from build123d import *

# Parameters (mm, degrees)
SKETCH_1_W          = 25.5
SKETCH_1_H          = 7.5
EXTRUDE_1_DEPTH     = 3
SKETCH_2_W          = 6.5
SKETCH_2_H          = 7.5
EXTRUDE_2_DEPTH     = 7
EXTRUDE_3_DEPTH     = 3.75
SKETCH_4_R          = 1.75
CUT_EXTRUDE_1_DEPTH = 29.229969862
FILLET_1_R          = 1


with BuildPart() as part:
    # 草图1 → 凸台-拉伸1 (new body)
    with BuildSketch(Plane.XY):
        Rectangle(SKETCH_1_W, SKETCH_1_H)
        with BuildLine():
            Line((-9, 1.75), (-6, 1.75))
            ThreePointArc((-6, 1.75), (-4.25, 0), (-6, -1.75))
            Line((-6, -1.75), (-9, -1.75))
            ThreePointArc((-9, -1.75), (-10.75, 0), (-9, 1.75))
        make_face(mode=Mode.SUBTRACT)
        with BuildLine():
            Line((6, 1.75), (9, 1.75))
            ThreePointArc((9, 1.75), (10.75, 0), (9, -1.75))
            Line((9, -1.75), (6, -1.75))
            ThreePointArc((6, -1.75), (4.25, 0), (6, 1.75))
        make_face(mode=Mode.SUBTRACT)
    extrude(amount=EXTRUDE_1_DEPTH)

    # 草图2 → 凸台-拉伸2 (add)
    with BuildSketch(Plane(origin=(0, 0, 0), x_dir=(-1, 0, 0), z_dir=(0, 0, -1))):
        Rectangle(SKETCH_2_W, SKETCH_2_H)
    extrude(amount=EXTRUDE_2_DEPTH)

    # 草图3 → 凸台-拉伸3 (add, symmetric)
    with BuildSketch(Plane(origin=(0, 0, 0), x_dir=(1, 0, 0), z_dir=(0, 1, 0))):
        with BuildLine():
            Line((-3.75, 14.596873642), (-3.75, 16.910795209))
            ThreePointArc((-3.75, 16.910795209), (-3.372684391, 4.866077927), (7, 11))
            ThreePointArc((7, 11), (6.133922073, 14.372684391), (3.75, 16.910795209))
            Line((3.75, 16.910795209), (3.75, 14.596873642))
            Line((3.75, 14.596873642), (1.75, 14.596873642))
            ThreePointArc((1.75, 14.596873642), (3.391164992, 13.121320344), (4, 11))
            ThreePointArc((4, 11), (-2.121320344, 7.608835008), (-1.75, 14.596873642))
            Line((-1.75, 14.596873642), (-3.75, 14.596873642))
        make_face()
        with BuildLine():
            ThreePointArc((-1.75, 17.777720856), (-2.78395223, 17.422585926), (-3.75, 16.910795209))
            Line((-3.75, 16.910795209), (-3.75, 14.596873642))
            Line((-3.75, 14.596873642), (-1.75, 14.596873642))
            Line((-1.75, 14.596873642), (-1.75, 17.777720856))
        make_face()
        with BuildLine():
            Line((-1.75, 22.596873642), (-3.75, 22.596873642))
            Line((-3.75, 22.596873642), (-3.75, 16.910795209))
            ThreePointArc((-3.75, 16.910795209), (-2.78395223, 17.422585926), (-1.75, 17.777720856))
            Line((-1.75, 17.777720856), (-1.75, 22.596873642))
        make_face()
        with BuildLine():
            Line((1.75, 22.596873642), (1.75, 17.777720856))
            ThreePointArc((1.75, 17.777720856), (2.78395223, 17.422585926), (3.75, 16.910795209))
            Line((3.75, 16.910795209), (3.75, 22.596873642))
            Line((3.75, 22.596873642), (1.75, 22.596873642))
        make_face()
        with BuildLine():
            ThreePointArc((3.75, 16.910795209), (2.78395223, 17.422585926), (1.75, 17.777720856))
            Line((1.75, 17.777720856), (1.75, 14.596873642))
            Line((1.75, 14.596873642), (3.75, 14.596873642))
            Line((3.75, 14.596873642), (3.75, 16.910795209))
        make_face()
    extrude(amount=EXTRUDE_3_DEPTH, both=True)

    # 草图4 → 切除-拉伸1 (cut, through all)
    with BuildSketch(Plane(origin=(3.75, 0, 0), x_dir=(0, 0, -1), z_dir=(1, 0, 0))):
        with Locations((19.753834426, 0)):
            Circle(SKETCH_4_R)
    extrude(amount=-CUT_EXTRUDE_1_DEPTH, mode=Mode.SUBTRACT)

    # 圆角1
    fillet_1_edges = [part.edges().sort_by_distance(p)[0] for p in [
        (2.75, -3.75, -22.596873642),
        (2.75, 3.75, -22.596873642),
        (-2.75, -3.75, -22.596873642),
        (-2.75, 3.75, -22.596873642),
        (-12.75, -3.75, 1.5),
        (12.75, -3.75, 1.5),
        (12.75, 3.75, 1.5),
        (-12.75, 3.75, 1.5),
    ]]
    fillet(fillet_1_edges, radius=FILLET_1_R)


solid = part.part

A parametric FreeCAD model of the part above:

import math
import FreeCAD as App
import Part
import Sketcher
from FreeCAD import Vector


def edges_at(feature, points):
    """Names of the edges that pass closest to the given points."""
    edges = feature.Shape.Edges
    near = lambda p: min(range(len(edges)), key=lambda i: edges[i].distToShape(Part.Vertex(*p))[0])
    return sorted({f"Edge{near(p) + 1}" for p in points})


def add_polygon(sketch, points):
    """Adds a closed chain of lines whose ends are joined by coincident constraints."""
    first, n = sketch.GeometryCount, len(points)
    for a, b in zip(points, points[1:] + points[:1]):
        sketch.addGeometry(Part.LineSegment(App.Vector(*a, 0), App.Vector(*b, 0)), False)
    for i in range(n):
        sketch.addConstraint(Sketcher.Constraint("Coincident", first + i, 2, first + (i + 1) % n, 1))

doc = App.newDocument("Part")
params = doc.addObject("Spreadsheet::Sheet", "Params")
for row, (alias, value) in enumerate([
    ("sketch1_width", "3 mm"),
    ("sketch1_radius", "1.75 mm"),
    ("sketch1_width2", "25.5 mm"),
    ("sketch1_height", "7.5 mm"),
    ("pad1_length", "3 mm"),
    ("sketch2_width", "6.5 mm"),
    ("sketch2_height", "7.5 mm"),
    ("pad2_length", "7 mm"),
    ("sketch3_radius", "7 mm"),
    ("sketch3_radius2", "4 mm"),
    ("sketch3_width", "2 mm"),
    ("sketch3_height", "8 mm"),
    ("pad3_length", "7.5 mm"),
    ("sketch4_diameter", "3.5 mm"),
    ("fillet_radius", "1 mm"),
], start=1):
    params.set(f"A{row}", alias)
    params.set(f"B{row}", "=" + value)
    params.setAlias(f"B{row}", alias)

body = doc.addObject("PartDesign::Body", "Body")

# Sketch on XY plane
sketch1 = body.newObject("Sketcher::SketchObject", "Sketch")
sketch1.AttachmentSupport = (doc.getObject("XY_Plane"), [""])
sketch1.MapMode = "FlatFace"
add_polygon(sketch1, [(-12.8, 3.8), (-12.8, -3.8), (12.8, -3.8), (12.8, 3.8)])  # lines 0-3
sketch1.addGeometry(Part.ArcOfCircle(Part.Circle(Vector(-9, 0, 0), Vector(0, 0, 1), 1.8), math.radians(90), math.radians(270)), False)  # 4
sketch1.addGeometry(Part.LineSegment(Vector(-9, 1.8, 0), Vector(-6, 1.8, 0)), False)  # 5
sketch1.addGeometry(Part.ArcOfCircle(Part.Circle(Vector(-6, 0, 0), Vector(0, 0, 1), 1.8), math.radians(-90), math.radians(90)), False)  # 6
sketch1.addGeometry(Part.LineSegment(Vector(-6, -1.8, 0), Vector(-9, -1.8, 0)), False)  # 7
sketch1.addGeometry(Part.ArcOfCircle(Part.Circle(Vector(6, 0, 0), Vector(0, 0, 1), 1.8), math.radians(90), math.radians(270)), False)  # 8
sketch1.addGeometry(Part.LineSegment(Vector(6, 1.8, 0), Vector(9, 1.8, 0)), False)  # 9
sketch1.addGeometry(Part.ArcOfCircle(Part.Circle(Vector(9, 0, 0), Vector(0, 0, 1), 1.8), math.radians(-90), math.radians(90)), False)  # 10
sketch1.addGeometry(Part.LineSegment(Vector(9, -1.8, 0), Vector(6, -1.8, 0)), False)  # 11
sketch1.addConstraint([
    Sketcher.Constraint("Tangent", 4, 1, 5, 1),
    Sketcher.Constraint("Tangent", 5, 2, 6, 2),
    Sketcher.Constraint("Tangent", 6, 1, 7, 1),
    Sketcher.Constraint("Tangent", 7, 2, 4, 2),
    Sketcher.Constraint("Tangent", 8, 1, 9, 1),
    Sketcher.Constraint("Tangent", 9, 2, 10, 2),
    Sketcher.Constraint("Tangent", 10, 1, 11, 1),
    Sketcher.Constraint("Tangent", 11, 2, 8, 2),
    Sketcher.Constraint("Vertical", 0),
    Sketcher.Constraint("Horizontal", 1),
    Sketcher.Constraint("Vertical", 2),
    Sketcher.Constraint("Horizontal", 3),
    Sketcher.Constraint("Horizontal", 5),
    Sketcher.Constraint("Horizontal", 7),
    Sketcher.Constraint("Horizontal", 9),
    Sketcher.Constraint("Horizontal", 11),
    Sketcher.Constraint("Equal", 6, 8),
    Sketcher.Constraint("Symmetric", 6, 3, 8, 3, -1, 1),
    Sketcher.Constraint("Symmetric", 0, 2, 2, 2, -1, 1),
    Sketcher.Constraint("Symmetric", 4, 3, 10, 3, -2),
    Sketcher.Constraint("DistanceX", 5, 1, 5, 2, 3.0),
    Sketcher.Constraint("Radius", 4, 1.75),
    Sketcher.Constraint("DistanceX", 1, 1, 1, 2, 25.5),
    Sketcher.Constraint("DistanceY", 0, 2, 0, 1, 7.5),
    Sketcher.Constraint("DistanceX", 4, 3, -1, 1, 9.0),
])
sketch1.setExpression("Constraints[24]", "Params.sketch1_width")
sketch1.setExpression("Constraints[25]", "Params.sketch1_radius")
sketch1.setExpression("Constraints[26]", "Params.sketch1_width2")
sketch1.setExpression("Constraints[27]", "Params.sketch1_height")
pad1 = body.newObject("PartDesign::Pad", "Pad")
pad1.Profile = sketch1
pad1.setExpression("Length", "Params.pad1_length")

# Sketch on XY plane
sketch2 = body.newObject("Sketcher::SketchObject", "Sketch001")
sketch2.AttachmentSupport = (doc.getObject("XY_Plane"), [""])
sketch2.MapMode = "FlatFace"
add_polygon(sketch2, [(3, 4), (3, -4), (-3, -4), (-3, 4)])  # lines 0-3
sketch2.addConstraint([
    Sketcher.Constraint("Vertical", 0),
    Sketcher.Constraint("Horizontal", 1),
    Sketcher.Constraint("Vertical", 2),
    Sketcher.Constraint("Horizontal", 3),
    Sketcher.Constraint("Symmetric", 0, 2, 2, 2, -1, 1),
    Sketcher.Constraint("DistanceX", 1, 2, 1, 1, 6.5),
    Sketcher.Constraint("DistanceY", 0, 2, 0, 1, 7.5),
])
sketch2.setExpression("Constraints[9]", "Params.sketch2_width")
sketch2.setExpression("Constraints[10]", "Params.sketch2_height")
pad2 = body.newObject("PartDesign::Pad", "Pad001")
pad2.Profile = sketch2
pad2.setExpression("Length", "Params.pad2_length")
pad2.Reversed = True

# Sketch on XZ plane
sketch3 = body.newObject("Sketcher::SketchObject", "Sketch002")
sketch3.AttachmentSupport = (doc.getObject("XZ_Plane"), [""])
sketch3.MapMode = "FlatFace"
sketch3.addGeometry([
    Part.ArcOfCircle(Part.Circle(Vector(0, -11, 0), Vector(0, 0, 1), 7), math.radians(0), math.radians(238)),  # 0
    Part.ArcOfCircle(Part.Circle(Vector(0, -11, 0), Vector(0, 0, 1), 7), math.radians(-58), math.radians(0)),  # 1
    Part.LineSegment(Vector(3.8, -16.9, 0), Vector(3.8, -22.6, 0)),  # 2
    Part.LineSegment(Vector(3.8, -22.6, 0), Vector(1.8, -22.6, 0)),  # 3
    Part.LineSegment(Vector(1.8, -22.6, 0), Vector(1.8, -14.6, 0)),  # 4
    Part.ArcOfCircle(Part.Circle(Vector(0, -11, 0), Vector(0, 0, 1), 4), math.radians(-64), math.radians(0)),  # 5
    Part.ArcOfCircle(Part.Circle(Vector(0, -11, 0), Vector(0, 0, 1), 4), math.radians(0), math.radians(244)),  # 6
    Part.LineSegment(Vector(-1.8, -14.6, 0), Vector(-1.8, -22.6, 0)),  # 7
    Part.LineSegment(Vector(-1.8, -22.6, 0), Vector(-3.8, -22.6, 0)),  # 8
    Part.LineSegment(Vector(-3.8, -22.6, 0), Vector(-3.8, -16.9, 0)),  # 9
], False)
sketch3.addConstraint([
    Sketcher.Constraint("Tangent", 0, 1, 1, 2),
    Sketcher.Constraint("Coincident", 1, 1, 2, 1),
    Sketcher.Constraint("Coincident", 2, 2, 3, 1),
    Sketcher.Constraint("Coincident", 3, 2, 4, 1),
    Sketcher.Constraint("Coincident", 4, 2, 5, 1),
    Sketcher.Constraint("Tangent", 5, 2, 6, 1),
    Sketcher.Constraint("Coincident", 6, 2, 7, 1),
    Sketcher.Constraint("Coincident", 7, 2, 8, 1),
    Sketcher.Constraint("Coincident", 8, 2, 9, 1),
    Sketcher.Constraint("Coincident", 9, 2, 0, 2),
    Sketcher.Constraint("Vertical", 2),
    Sketcher.Constraint("Horizontal", 3),
    Sketcher.Constraint("Vertical", 4),
    Sketcher.Constraint("Vertical", 7),
    Sketcher.Constraint("Horizontal", 8),
    Sketcher.Constraint("Vertical", 9),
    Sketcher.Constraint("Coincident", 5, 3, 0, 3),
    Sketcher.Constraint("Equal", 0, 1),
    Sketcher.Constraint("Equal", 5, 6),
    Sketcher.Constraint("Symmetric", 4, 2, 6, 2, -2),
    Sketcher.Constraint("Symmetric", 2, 2, 8, 2, -2),
    Sketcher.Constraint("Horizontal", 6, 3, 0, 1),
    Sketcher.Constraint("Horizontal", 0, 1, 5, 2),
    Sketcher.Constraint("Radius", 0, 7.0),
    Sketcher.Constraint("Radius", 5, 4.0),
    Sketcher.Constraint("DistanceX", 3, 2, 3, 1, 2.0),
    Sketcher.Constraint("DistanceY", 4, 1, 4, 2, 8.0),
    Sketcher.Constraint("DistanceY", 0, 3, -1, 1, 11.0),
    Sketcher.Constraint("DistanceX", 6, 2, 4, 2, 3.5),
])
sketch3.setExpression("Constraints[23]", "Params.sketch3_radius")
sketch3.setExpression("Constraints[24]", "Params.sketch3_radius2")
sketch3.setExpression("Constraints[25]", "Params.sketch3_width")
sketch3.setExpression("Constraints[26]", "Params.sketch3_height")
pad3 = body.newObject("PartDesign::Pad", "Pad002")
pad3.Profile = sketch3
pad3.setExpression("Length", "Params.pad3_length")
pad3.Midplane = True

# Sketch on YZ plane
sketch4 = body.newObject("Sketcher::SketchObject", "Sketch003")
sketch4.AttachmentSupport = (doc.getObject("YZ_Plane"), [""])
sketch4.MapMode = "FlatFace"
sketch4.AttachmentOffset = App.Placement(Vector(0, 0, 3.75), App.Rotation())
sketch4.addGeometry(Part.Circle(Vector(0, -19.8, 0), Vector(0, 0, 1), 1.8), False)
sketch4.addConstraint([
    Sketcher.Constraint("PointOnObject", 0, 3, -2),
    Sketcher.Constraint("Diameter", 0, 3.5),
    Sketcher.Constraint("DistanceY", 0, 3, -1, 1, 19.753834),
])
sketch4.setExpression("Constraints[1]", "Params.sketch4_diameter")
pocket1 = body.newObject("PartDesign::Pocket", "Pocket")
pocket1.Profile = sketch4
pocket1.Type = "ThroughAll"
doc.recompute()

fillet = body.newObject("PartDesign::Fillet", "Fillet")
fillet.Base = (pocket1, edges_at(pocket1, [
    (2.75, -3.75, -22.597),
    (2.75, 3.75, -22.597),
    (-2.75, -3.75, -22.597),
    (-2.75, 3.75, -22.597),
    (-12.75, -3.75, 1.5),
    (12.75, -3.75, 1.5),
    (12.75, 3.75, 1.5),
    (-12.75, 3.75, 1.5),
]))
fillet.setExpression("Radius", "Params.fillet_radius")

doc.recompute()
